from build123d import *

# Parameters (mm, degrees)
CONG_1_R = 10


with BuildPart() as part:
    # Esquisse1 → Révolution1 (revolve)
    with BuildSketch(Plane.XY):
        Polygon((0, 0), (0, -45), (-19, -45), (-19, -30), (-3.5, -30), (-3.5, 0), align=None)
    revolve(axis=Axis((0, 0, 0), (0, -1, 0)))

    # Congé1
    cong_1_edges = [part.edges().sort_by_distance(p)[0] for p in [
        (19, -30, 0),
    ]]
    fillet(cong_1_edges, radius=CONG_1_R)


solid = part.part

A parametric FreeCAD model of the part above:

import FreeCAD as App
import Part
import Sketcher
from FreeCAD import Vector


def edges_at(feature, points):
    """Names of the edges that pass closest to the given points."""
    edges = feature.Shape.Edges
    near = lambda p: min(range(len(edges)), key=lambda i: edges[i].distToShape(Part.Vertex(*p))[0])
    return sorted({f"Edge{near(p) + 1}" for p in points})


def add_polygon(sketch, points):
    """Adds a closed chain of lines whose ends are joined by coincident constraints."""
    first, n = sketch.GeometryCount, len(points)
    for a, b in zip(points, points[1:] + points[:1]):
        sketch.addGeometry(Part.LineSegment(App.Vector(*a, 0), App.Vector(*b, 0)), False)
    for i in range(n):
        sketch.addConstraint(Sketcher.Constraint("Coincident", first + i, 2, first + (i + 1) % n, 1))

doc = App.newDocument("Part")
body = doc.addObject("PartDesign::Body", "Body")

sketch1 = body.newObject("Sketcher::SketchObject", "Sketch")
sketch1.AttachmentSupport = (doc.getObject("XY_Plane"), [""])
sketch1.MapMode = "FlatFace"
add_polygon(sketch1, [(0, -45), (0, 0), (-3.5, 0), (-3.5, -30), (-19, -30), (-19, -45)])
sketch1.addConstraint([
    Sketcher.Constraint("Vertical", 0),
    Sketcher.Constraint("Horizontal", 1),
    Sketcher.Constraint("Vertical", 2),
    Sketcher.Constraint("Horizontal", 3),
    Sketcher.Constraint("Vertical", 4),
    Sketcher.Constraint("Horizontal", 5),
    Sketcher.Constraint("Coincident", 0, 2, -1, 1),
    Sketcher.Constraint("DistanceX", 5, 1, 5, 2, 19.0),
    Sketcher.Constraint("DistanceY", 0, 1, 0, 2, 45.0),
    Sketcher.Constraint("DistanceY", 2, 2, 2, 1, 30.0),
    Sketcher.Constraint("DistanceX", 1, 2, 1, 1, 3.5),
])
revolution = body.newObject("PartDesign::Revolution", "Revolution")
revolution.Profile = sketch1
revolution.ReferenceAxis = (sketch1, ["V_Axis"])
revolution.Angle = 360
doc.recompute()

fillet = body.newObject("PartDesign::Fillet", "Fillet")
fillet.Base = (revolution, edges_at(revolution, [(19, -30, 0)]))
fillet.Radius = 10

doc.recompute()
